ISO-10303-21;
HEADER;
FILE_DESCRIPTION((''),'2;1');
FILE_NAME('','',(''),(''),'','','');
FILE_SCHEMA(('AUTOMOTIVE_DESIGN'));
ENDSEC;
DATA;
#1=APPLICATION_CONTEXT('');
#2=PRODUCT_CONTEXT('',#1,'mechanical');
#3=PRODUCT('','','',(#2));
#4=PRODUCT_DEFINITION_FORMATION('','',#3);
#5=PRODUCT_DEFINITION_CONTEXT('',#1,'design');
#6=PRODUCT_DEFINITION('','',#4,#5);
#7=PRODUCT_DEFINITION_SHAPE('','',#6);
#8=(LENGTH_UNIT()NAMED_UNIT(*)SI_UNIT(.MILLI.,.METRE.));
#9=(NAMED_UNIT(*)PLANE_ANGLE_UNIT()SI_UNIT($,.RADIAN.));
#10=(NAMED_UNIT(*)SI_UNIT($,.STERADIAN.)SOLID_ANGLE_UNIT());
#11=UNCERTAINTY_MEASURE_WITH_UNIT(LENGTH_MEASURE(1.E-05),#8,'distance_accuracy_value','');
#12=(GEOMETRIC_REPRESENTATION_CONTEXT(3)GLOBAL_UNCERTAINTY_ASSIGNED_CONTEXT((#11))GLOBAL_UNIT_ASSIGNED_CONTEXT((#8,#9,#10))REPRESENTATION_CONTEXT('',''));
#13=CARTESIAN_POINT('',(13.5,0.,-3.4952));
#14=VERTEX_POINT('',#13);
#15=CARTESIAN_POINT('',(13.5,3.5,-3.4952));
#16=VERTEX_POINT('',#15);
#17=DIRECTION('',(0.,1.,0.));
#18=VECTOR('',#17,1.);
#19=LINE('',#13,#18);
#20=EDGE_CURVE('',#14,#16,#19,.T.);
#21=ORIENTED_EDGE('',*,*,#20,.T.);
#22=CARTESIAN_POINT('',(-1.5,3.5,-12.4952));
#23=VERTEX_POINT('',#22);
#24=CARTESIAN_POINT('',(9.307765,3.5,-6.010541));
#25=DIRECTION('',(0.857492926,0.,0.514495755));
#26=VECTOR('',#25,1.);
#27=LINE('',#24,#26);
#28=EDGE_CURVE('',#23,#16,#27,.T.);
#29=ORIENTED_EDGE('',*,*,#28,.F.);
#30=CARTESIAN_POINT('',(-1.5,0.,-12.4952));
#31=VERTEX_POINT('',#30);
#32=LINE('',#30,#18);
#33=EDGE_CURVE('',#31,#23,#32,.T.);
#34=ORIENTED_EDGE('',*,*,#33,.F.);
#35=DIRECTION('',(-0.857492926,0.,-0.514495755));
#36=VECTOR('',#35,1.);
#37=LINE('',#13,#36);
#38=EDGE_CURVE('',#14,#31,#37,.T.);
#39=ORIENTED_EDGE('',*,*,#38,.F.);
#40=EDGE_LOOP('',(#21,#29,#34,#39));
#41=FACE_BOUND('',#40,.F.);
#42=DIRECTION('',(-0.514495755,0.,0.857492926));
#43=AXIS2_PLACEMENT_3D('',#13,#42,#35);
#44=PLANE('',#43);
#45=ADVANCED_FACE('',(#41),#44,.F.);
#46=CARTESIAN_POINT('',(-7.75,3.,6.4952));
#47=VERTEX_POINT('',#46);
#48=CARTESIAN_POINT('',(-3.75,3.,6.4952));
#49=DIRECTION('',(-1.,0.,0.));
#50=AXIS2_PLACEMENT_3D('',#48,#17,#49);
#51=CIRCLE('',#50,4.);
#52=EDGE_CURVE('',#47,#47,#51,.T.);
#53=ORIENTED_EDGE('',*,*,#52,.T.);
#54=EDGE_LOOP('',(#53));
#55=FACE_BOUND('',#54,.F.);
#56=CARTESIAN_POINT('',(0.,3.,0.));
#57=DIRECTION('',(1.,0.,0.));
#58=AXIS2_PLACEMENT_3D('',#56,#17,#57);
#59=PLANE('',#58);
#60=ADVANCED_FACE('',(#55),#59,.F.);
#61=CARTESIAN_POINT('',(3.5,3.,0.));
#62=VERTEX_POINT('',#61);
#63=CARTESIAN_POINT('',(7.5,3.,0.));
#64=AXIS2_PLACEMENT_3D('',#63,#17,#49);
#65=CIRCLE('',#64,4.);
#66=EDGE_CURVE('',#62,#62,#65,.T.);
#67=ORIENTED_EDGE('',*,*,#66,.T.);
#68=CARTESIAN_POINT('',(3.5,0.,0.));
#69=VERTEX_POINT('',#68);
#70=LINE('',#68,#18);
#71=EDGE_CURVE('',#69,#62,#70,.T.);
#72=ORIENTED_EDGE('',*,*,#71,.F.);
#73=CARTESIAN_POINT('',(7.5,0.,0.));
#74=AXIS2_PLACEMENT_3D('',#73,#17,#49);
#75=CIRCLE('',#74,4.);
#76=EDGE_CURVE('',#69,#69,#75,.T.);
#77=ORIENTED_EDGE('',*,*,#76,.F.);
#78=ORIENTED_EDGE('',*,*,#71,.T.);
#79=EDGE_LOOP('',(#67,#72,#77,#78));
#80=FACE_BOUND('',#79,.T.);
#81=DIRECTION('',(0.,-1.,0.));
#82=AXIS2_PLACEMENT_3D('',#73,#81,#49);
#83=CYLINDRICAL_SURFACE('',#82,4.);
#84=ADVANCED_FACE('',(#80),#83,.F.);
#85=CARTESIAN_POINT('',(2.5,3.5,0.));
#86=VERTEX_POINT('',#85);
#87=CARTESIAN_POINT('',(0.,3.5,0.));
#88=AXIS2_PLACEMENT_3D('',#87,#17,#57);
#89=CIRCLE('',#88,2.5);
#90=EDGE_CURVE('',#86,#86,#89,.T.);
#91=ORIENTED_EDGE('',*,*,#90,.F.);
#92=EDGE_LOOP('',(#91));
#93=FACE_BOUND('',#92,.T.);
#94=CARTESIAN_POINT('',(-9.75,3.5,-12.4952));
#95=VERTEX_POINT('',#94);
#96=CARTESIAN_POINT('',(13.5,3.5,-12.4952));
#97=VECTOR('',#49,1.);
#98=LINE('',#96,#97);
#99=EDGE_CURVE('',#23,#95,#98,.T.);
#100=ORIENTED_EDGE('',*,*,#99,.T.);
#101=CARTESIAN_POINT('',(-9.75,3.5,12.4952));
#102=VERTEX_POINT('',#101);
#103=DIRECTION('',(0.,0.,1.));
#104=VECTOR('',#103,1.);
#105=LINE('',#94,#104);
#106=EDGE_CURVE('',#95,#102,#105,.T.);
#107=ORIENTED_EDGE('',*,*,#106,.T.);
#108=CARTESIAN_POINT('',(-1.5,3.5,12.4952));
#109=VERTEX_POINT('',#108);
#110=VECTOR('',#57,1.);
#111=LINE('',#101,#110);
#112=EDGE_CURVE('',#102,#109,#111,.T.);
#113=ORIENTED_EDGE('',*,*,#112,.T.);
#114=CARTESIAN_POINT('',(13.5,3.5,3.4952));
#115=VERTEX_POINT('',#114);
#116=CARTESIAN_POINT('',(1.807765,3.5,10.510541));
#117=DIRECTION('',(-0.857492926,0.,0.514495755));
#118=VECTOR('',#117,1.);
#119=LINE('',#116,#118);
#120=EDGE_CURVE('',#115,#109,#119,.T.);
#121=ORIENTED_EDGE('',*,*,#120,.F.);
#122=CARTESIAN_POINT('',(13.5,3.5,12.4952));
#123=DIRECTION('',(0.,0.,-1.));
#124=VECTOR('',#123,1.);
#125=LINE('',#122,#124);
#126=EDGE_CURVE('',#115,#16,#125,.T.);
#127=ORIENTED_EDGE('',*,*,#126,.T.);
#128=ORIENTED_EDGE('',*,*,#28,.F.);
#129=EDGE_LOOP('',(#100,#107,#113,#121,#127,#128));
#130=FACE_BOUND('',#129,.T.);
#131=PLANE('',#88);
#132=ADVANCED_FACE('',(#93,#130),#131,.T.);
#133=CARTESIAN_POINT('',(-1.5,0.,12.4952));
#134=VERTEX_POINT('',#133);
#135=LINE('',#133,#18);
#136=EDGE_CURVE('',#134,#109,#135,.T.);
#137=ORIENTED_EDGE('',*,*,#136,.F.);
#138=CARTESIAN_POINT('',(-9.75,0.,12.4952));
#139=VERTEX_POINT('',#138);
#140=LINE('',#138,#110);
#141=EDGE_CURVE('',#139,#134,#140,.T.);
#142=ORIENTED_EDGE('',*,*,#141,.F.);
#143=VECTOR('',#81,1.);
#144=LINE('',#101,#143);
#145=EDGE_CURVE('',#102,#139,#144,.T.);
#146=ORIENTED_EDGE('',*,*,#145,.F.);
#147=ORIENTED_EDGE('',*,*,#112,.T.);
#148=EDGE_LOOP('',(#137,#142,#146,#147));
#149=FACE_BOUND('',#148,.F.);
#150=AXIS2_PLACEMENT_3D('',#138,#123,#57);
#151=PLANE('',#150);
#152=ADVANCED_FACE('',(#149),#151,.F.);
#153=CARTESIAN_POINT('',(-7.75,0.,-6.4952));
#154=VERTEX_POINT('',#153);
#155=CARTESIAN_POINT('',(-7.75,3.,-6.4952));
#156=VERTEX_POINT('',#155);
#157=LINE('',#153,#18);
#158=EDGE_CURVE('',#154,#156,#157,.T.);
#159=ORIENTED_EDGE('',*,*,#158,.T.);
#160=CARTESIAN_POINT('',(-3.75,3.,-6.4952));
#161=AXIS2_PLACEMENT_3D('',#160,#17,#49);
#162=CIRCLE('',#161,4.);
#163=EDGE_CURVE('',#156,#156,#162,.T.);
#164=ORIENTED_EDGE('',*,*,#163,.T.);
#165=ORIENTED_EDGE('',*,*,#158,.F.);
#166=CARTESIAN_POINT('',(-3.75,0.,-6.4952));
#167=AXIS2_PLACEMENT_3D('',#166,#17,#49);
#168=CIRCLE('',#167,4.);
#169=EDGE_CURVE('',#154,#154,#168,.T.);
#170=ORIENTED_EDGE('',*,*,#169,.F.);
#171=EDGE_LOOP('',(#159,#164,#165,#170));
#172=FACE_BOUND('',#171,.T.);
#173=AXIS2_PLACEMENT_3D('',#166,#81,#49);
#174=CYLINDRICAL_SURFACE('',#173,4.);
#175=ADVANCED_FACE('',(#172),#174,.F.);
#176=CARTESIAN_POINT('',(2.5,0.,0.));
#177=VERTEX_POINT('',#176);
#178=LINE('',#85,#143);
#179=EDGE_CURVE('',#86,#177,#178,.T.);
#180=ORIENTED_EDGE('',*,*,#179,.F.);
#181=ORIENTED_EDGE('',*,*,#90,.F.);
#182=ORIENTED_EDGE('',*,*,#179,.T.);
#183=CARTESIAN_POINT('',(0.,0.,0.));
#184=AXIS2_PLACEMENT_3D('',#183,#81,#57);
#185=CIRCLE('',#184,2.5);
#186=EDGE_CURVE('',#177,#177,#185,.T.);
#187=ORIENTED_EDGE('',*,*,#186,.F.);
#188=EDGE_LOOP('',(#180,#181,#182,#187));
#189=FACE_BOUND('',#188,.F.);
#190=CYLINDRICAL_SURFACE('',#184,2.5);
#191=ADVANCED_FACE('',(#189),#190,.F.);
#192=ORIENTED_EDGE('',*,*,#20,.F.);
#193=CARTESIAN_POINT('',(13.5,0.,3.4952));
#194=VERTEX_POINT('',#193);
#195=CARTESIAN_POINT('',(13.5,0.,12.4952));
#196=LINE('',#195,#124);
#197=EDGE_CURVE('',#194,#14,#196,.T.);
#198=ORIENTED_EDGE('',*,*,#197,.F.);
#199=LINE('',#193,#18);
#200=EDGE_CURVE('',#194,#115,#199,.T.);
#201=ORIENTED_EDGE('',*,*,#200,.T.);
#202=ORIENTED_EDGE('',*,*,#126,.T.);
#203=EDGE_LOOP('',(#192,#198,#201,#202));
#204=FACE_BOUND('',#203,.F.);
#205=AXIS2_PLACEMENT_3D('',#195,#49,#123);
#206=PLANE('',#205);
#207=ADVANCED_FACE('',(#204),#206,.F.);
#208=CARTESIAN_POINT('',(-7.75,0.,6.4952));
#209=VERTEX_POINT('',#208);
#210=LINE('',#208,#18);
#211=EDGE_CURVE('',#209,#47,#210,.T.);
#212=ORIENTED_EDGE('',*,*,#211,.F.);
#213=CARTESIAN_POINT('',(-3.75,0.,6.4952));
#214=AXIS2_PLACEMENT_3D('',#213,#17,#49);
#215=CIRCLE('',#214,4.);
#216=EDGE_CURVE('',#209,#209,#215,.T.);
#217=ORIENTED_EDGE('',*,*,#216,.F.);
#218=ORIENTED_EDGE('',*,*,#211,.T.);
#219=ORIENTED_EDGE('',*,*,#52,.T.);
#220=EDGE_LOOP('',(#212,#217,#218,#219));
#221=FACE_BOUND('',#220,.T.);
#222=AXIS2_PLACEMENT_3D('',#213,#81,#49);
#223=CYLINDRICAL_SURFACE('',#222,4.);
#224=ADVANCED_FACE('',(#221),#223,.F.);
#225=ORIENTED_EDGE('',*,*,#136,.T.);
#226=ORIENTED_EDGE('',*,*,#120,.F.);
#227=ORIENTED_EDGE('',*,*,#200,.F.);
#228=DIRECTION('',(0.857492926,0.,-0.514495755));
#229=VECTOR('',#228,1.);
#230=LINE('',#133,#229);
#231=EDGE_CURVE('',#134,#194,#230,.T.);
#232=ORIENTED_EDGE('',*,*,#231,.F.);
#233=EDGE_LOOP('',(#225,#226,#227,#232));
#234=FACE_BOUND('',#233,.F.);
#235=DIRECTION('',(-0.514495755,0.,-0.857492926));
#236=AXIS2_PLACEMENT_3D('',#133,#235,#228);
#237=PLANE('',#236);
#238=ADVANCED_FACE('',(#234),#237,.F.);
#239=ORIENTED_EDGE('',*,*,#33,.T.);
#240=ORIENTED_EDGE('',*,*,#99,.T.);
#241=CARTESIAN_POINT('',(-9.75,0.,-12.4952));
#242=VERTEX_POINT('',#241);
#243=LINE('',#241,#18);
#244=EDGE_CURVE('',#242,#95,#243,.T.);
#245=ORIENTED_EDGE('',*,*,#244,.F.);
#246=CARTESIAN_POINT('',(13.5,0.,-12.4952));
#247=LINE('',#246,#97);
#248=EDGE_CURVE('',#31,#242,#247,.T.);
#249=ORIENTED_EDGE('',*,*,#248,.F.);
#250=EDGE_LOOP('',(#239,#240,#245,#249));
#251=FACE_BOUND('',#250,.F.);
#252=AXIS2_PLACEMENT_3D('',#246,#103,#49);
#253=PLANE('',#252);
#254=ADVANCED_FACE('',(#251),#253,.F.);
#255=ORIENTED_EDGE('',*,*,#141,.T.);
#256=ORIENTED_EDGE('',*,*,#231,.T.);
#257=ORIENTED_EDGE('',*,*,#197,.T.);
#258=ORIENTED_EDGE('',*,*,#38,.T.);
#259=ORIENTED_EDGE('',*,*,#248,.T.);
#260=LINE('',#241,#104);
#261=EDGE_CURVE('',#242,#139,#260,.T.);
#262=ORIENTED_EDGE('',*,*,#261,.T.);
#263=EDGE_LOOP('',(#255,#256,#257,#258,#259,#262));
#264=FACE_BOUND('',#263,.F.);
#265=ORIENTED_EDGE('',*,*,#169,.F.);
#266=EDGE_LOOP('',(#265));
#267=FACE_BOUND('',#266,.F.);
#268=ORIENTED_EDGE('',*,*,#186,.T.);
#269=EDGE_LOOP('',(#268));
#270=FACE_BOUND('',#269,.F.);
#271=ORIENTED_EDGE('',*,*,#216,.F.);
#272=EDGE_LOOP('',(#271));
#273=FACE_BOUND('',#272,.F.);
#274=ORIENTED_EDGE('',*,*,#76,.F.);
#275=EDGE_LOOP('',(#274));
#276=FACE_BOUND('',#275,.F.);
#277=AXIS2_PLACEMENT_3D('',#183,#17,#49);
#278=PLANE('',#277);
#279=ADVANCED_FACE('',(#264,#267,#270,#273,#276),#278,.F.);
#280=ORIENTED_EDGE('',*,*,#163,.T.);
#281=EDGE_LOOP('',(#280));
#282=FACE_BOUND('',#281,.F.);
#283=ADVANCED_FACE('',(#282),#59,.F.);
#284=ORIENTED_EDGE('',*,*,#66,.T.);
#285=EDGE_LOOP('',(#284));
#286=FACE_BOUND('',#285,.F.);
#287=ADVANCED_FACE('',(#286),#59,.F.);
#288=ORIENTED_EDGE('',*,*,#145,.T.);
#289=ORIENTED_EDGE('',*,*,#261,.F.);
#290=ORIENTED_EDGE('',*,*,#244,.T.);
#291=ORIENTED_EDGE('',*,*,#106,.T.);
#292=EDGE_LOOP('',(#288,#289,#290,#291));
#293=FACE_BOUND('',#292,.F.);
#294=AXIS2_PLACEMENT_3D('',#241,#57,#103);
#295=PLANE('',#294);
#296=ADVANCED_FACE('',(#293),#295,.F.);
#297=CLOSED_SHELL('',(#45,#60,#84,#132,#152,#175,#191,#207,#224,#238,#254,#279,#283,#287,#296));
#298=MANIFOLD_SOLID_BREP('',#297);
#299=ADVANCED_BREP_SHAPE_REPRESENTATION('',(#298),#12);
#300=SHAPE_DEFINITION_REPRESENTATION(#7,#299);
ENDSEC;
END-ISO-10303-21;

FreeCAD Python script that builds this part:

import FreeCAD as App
import Part
import Sketcher

V = App.Vector
Q = App.Units.Quantity

doc = App.newDocument("Part")
body = doc.addObject("PartDesign::Body", "Body")

# Sketch on XZ plane
sketch1 = body.newObject("Sketcher::SketchObject", "Sketch")
sketch1.AttachmentSupport = (doc.getObject("XZ_Plane"), [""])
sketch1.MapMode = "FlatFace"
sketch1.addGeometry([
    Part.LineSegment(V(13.5, 12.5, 0), V(13.5, -12.5, 0)),  # 0
    Part.LineSegment(V(13.5, -12.5, 0), V(-9.8, -12.5, 0)),  # 1
    Part.LineSegment(V(-9.8, -12.5, 0), V(-9.8, 12.5, 0)),  # 2
    Part.LineSegment(V(-9.8, 12.5, 0), V(13.5, 12.5, 0)),  # 3
    Part.Circle(V(-3.8, -6.5, 0), V(0, 0, 1), 4),  # 4
    Part.Circle(V(7.5, 0, 0), V(0, 0, 1), 4),  # 5
    Part.Circle(V(-3.8, 6.5, 0), V(0, 0, 1), 4),  # 6
], False)
sketch1.addConstraint([
    Sketcher.Constraint("Coincident", 0, 2, 1, 1),
    Sketcher.Constraint("Coincident", 1, 2, 2, 1),
    Sketcher.Constraint("Coincident", 2, 2, 3, 1),
    Sketcher.Constraint("Coincident", 3, 2, 0, 1),
    Sketcher.Constraint("Vertical", 0),
    Sketcher.Constraint("Horizontal", 1),
    Sketcher.Constraint("Vertical", 2),
    Sketcher.Constraint("Horizontal", 3),
    Sketcher.Constraint("Equal", 4, 5),
    Sketcher.Constraint("Equal", 5, 6),
    Sketcher.Constraint("Symmetric", 4, 3, 6, 3, -1),
    Sketcher.Constraint("PointOnObject", 5, 3, -1),
    Sketcher.Constraint("Diameter", 4, Q("8 mm")),
    Sketcher.Constraint("DistanceX", 5, 3, 0, 2, Q("6 mm")),
    Sketcher.Constraint("DistanceY", 0, 2, 4, 3, Q("6 mm")),
    Sketcher.Constraint("DistanceX", 1, 2, 4, 3, Q("6 mm")),
    Sketcher.Constraint("DistanceY", 6, 3, 2, 2, Q("6 mm")),
    Sketcher.Constraint("DistanceX", 1, 2, 1, 1, Q("23.25 mm")),
    Sketcher.Constraint("DistanceX", -1, 1, 5, 3, Q("7.5 mm")),
    Sketcher.Constraint("DistanceY", 0, 2, 0, 1, Q("24.9904 mm")),
])
pad1 = body.newObject("PartDesign::Pad", "Pad")
pad1.Profile = sketch1
pad1.Length = 3
pad1.Reversed = True

# Sketch on XZ plane
sketch2 = body.newObject("Sketcher::SketchObject", "Sketch001")
sketch2.AttachmentSupport = (doc.getObject("XZ_Plane"), [""])
sketch2.MapMode = "FlatFace"
sketch2.AttachmentOffset = App.Placement(V(0, 0, -3), App.Rotation())
sketch2.addGeometry([
    Part.LineSegment(V(13.5, 12.5, 0), V(13.5, -12.5, 0)),  # 0
    Part.LineSegment(V(13.5, -12.5, 0), V(-9.8, -12.5, 0)),  # 1
    Part.LineSegment(V(-9.8, -12.5, 0), V(-9.8, 12.5, 0)),  # 2
    Part.LineSegment(V(-9.8, 12.5, 0), V(13.5, 12.5, 0)),  # 3
    Part.Circle(V(0, 0, 0), V(0, 0, 1), 2.5),  # 4
], False)
sketch2.addConstraint([
    Sketcher.Constraint("Coincident", 0, 2, 1, 1),
    Sketcher.Constraint("Coincident", 1, 2, 2, 1),
    Sketcher.Constraint("Coincident", 2, 2, 3, 1),
    Sketcher.Constraint("Coincident", 3, 2, 0, 1),
    Sketcher.Constraint("Vertical", 0),
    Sketcher.Constraint("Horizontal", 1),
    Sketcher.Constraint("Vertical", 2),
    Sketcher.Constraint("Horizontal", 3),
    Sketcher.Constraint("Coincident", 4, 3, -1, 1),
    Sketcher.Constraint("Diameter", 4, Q("5 mm")),
    Sketcher.Constraint("DistanceX", 1, 2, 1, 1, Q("23.25 mm")),
    Sketcher.Constraint("DistanceX", -1, 1, 0, 2, Q("13.5 mm")),
    Sketcher.Constraint("DistanceY", 0, 2, 0, 1, Q("24.9904 mm")),
    Sketcher.Constraint("DistanceY", 0, 2, -1, 1, Q("12.4952 mm")),
])
pad2 = body.newObject("PartDesign::Pad", "Pad001")
pad2.Profile = sketch2
pad2.Length = 0.5
pad2.Reversed = True

# Sketch on XZ plane
sketch3 = body.newObject("Sketcher::SketchObject", "Sketch002")
sketch3.AttachmentSupport = (doc.getObject("XZ_Plane"), [""])
sketch3.MapMode = "FlatFace"
sketch3.addGeometry([
    Part.LineSegment(V(-1.5, 12.5, 0), V(13.5, 3.5, 0)),  # 0
    Part.LineSegment(V(13.5, 3.5, 0), V(13.5, 12.5, 0)),  # 1
    Part.LineSegment(V(13.5, 12.5, 0), V(-1.5, 12.5, 0)),  # 2
    Part.LineSegment(V(-1.5, -12.5, 0), V(13.5, -12.5, 0)),  # 3
    Part.LineSegment(V(13.5, -12.5, 0), V(13.5, -3.5, 0)),  # 4
    Part.LineSegment(V(13.5, -3.5, 0), V(-1.5, -12.5, 0)),  # 5
    Part.Circle(V(0, 0, 0), V(0, 0, 1), 2.5),  # 6
], False)
sketch3.addConstraint([
    Sketcher.Constraint("Coincident", 0, 2, 1, 1),
    Sketcher.Constraint("Coincident", 1, 2, 2, 1),
    Sketcher.Constraint("Coincident", 2, 2, 0, 1),
    Sketcher.Constraint("Coincident", 3, 2, 4, 1),
    Sketcher.Constraint("Coincident", 4, 2, 5, 1),
    Sketcher.Constraint("Coincident", 5, 2, 3, 1),
    Sketcher.Constraint("Vertical", 1),
    Sketcher.Constraint("Horizontal", 2),
    Sketcher.Constraint("Horizontal", 3),
    Sketcher.Constraint("Vertical", 4),
    Sketcher.Constraint("Coincident", 6, 3, -1, 1),
    Sketcher.Constraint("Symmetric", 1, 2, 3, 2, -1),
    Sketcher.Constraint("Vertical", 2, 2, 5, 2),
    Sketcher.Constraint("Equal", 1, 4),
    Sketcher.Constraint("DistanceX", 2, 2, 2, 1, Q("15 mm")),
    Sketcher.Constraint("DistanceY", 1, 1, 1, 2, Q("9 mm")),
    Sketcher.Constraint("Diameter", 6, Q("5 mm")),
    Sketcher.Constraint("DistanceX", -1, 1, 0, 2, Q("13.5 mm")),
    Sketcher.Constraint("DistanceY", -1, 1, 0, 2, Q("3.4952 mm")),
])
pocket1 = body.newObject("PartDesign::Pocket", "Pocket")
pocket1.Profile = sketch3
pocket1.Type = "ThroughAll"

doc.recompute()
